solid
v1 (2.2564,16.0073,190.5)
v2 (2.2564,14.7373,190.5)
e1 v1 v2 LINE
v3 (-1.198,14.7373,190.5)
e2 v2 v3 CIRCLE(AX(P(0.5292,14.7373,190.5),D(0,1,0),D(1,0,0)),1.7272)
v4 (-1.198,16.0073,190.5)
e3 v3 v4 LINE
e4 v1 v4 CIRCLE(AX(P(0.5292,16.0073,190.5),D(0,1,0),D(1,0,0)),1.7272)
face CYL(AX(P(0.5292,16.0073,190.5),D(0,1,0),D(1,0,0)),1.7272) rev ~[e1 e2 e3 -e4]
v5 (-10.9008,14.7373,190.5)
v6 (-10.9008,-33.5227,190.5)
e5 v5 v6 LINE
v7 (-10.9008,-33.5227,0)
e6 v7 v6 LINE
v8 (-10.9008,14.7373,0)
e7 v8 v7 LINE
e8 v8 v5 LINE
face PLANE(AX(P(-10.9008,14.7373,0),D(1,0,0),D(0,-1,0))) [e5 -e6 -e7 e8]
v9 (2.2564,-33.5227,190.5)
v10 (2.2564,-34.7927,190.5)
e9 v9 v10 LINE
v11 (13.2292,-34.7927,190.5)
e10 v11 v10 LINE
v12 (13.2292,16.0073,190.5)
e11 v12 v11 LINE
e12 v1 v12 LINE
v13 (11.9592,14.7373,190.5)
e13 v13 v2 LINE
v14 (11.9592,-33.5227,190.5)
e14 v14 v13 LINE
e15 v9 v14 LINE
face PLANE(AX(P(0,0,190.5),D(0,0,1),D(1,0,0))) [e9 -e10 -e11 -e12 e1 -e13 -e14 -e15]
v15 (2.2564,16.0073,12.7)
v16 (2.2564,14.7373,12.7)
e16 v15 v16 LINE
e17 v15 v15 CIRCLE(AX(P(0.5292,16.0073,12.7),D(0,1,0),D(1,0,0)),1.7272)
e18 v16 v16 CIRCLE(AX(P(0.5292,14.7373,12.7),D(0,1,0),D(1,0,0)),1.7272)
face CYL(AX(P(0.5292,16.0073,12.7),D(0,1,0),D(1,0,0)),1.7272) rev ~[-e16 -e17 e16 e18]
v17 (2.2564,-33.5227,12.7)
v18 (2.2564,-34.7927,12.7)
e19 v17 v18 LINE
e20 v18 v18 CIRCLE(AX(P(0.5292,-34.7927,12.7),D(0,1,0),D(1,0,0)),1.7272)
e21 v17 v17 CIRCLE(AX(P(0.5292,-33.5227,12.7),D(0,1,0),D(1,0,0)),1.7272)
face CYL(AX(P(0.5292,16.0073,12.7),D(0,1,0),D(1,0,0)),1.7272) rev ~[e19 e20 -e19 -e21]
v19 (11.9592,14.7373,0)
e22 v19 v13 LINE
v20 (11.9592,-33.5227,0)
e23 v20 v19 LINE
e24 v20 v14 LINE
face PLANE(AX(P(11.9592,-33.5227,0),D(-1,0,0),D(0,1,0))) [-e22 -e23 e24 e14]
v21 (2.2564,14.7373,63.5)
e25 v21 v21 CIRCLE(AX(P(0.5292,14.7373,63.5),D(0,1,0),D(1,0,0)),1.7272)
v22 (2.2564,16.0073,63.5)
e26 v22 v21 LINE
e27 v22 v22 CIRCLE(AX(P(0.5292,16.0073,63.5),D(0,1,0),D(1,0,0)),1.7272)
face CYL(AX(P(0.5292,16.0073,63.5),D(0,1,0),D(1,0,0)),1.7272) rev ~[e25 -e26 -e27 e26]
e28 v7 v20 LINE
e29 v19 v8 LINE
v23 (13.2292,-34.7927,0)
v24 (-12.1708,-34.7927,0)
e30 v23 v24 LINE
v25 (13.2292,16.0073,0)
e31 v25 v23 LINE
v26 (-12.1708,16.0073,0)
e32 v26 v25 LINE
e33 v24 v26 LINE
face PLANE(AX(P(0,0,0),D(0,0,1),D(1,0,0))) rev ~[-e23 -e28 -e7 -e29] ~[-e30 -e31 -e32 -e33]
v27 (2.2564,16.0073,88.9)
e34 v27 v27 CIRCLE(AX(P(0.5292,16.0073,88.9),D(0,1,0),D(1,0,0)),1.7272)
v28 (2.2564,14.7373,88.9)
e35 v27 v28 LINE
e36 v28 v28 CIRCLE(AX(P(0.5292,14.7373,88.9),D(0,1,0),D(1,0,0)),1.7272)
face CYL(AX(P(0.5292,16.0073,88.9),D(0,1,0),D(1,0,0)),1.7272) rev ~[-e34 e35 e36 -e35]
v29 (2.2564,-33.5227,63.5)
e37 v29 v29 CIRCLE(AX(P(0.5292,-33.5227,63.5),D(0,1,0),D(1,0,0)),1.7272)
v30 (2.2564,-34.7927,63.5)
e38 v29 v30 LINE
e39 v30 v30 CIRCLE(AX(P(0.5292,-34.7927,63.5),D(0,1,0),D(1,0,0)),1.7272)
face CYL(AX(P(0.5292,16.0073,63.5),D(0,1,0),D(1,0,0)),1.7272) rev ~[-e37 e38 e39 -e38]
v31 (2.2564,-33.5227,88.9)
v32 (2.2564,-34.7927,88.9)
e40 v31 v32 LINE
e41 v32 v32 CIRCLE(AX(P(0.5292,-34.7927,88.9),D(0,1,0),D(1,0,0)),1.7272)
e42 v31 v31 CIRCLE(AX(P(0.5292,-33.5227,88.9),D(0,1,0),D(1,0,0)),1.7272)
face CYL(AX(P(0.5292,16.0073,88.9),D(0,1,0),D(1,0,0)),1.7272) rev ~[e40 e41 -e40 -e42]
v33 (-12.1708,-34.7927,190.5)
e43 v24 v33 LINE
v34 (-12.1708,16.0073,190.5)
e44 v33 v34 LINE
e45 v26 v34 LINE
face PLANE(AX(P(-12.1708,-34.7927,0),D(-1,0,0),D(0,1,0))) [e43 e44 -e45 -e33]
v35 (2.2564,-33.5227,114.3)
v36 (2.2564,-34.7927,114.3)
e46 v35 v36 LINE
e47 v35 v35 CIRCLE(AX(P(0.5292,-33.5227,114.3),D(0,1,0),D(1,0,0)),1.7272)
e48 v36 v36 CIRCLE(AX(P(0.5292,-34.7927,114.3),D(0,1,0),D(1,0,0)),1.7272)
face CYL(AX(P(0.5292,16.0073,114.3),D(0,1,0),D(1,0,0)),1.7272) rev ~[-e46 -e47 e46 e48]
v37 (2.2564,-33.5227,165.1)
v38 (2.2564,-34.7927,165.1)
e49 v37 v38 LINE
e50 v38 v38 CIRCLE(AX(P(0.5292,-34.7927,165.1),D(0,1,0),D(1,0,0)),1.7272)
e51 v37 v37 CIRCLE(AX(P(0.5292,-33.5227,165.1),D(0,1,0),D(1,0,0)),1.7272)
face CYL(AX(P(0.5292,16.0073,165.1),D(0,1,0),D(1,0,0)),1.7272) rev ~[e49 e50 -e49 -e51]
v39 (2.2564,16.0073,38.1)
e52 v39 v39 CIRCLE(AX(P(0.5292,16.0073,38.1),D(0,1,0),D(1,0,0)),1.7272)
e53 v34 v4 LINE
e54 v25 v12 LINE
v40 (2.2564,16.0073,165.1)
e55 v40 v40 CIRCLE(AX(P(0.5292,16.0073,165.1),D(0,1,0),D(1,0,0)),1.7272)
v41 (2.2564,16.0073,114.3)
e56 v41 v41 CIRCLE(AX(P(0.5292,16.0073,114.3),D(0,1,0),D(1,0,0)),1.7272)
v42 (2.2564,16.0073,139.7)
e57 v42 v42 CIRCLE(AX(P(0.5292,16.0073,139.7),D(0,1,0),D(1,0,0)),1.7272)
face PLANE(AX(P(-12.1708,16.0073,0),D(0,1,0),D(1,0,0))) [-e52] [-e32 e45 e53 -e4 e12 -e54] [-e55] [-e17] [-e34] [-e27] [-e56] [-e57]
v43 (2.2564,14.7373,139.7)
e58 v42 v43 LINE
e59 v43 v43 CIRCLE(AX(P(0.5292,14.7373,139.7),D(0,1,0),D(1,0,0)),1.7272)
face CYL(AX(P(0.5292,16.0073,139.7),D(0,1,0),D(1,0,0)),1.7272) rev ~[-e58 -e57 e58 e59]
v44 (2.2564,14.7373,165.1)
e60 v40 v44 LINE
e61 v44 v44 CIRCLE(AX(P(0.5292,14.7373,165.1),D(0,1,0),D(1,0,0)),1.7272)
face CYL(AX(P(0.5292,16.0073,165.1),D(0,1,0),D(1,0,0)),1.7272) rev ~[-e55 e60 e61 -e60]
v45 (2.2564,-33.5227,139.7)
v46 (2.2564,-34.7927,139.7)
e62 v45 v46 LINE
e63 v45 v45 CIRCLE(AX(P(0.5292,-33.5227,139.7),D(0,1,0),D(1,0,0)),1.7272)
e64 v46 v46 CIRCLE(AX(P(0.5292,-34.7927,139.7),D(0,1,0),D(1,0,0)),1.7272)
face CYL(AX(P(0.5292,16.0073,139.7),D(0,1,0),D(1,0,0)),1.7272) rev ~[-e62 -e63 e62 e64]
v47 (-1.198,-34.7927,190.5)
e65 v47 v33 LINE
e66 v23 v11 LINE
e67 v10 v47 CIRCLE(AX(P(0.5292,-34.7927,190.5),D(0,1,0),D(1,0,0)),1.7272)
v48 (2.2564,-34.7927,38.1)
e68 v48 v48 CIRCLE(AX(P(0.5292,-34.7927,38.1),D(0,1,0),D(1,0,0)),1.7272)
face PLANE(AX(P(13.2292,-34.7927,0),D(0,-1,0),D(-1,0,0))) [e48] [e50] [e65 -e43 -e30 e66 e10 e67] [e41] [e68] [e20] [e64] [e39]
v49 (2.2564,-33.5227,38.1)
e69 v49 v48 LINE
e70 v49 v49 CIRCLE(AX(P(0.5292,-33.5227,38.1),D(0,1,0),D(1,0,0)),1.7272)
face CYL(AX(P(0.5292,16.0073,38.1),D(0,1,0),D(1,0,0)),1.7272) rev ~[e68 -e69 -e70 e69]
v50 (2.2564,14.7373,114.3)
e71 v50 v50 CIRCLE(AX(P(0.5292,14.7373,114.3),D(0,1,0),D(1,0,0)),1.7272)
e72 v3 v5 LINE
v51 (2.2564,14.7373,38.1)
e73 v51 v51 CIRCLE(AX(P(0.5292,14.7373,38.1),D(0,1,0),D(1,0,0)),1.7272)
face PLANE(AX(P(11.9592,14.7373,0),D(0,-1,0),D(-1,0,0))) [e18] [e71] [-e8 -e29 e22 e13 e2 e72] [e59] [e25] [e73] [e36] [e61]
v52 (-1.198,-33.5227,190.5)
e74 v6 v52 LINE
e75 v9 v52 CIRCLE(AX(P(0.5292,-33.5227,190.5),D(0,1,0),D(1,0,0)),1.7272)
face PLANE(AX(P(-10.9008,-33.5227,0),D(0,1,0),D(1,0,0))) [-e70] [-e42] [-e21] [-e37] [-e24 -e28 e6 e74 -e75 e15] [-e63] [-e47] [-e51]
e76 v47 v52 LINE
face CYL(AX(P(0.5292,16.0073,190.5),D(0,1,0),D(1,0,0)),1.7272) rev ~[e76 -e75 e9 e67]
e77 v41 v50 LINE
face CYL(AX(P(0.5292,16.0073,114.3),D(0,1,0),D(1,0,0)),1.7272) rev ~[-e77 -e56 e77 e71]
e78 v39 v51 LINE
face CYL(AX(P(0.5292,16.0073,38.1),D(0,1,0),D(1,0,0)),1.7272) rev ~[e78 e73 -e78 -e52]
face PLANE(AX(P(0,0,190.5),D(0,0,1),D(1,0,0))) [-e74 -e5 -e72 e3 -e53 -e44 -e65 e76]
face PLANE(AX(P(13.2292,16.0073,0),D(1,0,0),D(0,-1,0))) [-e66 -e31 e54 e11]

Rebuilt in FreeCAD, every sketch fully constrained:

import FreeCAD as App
import Part
import Sketcher
Q = App.Units.Quantity


def add_polygon(sketch, points):
    """Adds a closed chain of lines whose ends are joined by coincident constraints."""
    first, n = sketch.GeometryCount, len(points)
    for a, b in zip(points, points[1:] + points[:1]):
        sketch.addGeometry(Part.LineSegment(App.Vector(*a, 0), App.Vector(*b, 0)), False)
    for i in range(n):
        sketch.addConstraint(Sketcher.Constraint("Coincident", first + i, 2, first + (i + 1) % n, 1))

doc = App.newDocument("Part")
params = doc.addObject("Spreadsheet::Sheet", "Params")
for row, (alias, value) in enumerate([
    ("sketch1_width", "1 in"),
    ("sketch1_height", "2 in"),
    ("pad1_length", "7.5 in"),
    ("sketch2_diameter", "0.136 in"),
    ("linearpattern_pitch", "1 in"),
], start=1):
    params.set(f"A{row}", alias)
    params.set(f"B{row}", "=" + value)
    params.setAlias(f"B{row}", alias)

body = doc.addObject("PartDesign::Body", "Body")

# Sketch on XY plane
sketch1 = body.newObject("Sketcher::SketchObject", "Sketch")
sketch1.AttachmentSupport = (doc.getObject("XY_Plane"), [""])
sketch1.MapMode = "FlatFace"
add_polygon(sketch1, [(13, 16), (-12, 16), (-12, -35), (13, -35)])  # lines 0-3
add_polygon(sketch1, [(-11, 15), (12, 15), (12, -34), (-11, -34)])  # lines 4-7
sketch1.addConstraint([
    Sketcher.Constraint("Horizontal", 0),
    Sketcher.Constraint("Vertical", 1),
    Sketcher.Constraint("Horizontal", 2),
    Sketcher.Constraint("Vertical", 3),
    Sketcher.Constraint("Horizontal", 4),
    Sketcher.Constraint("Vertical", 5),
    Sketcher.Constraint("Horizontal", 6),
    Sketcher.Constraint("Vertical", 7),
    Sketcher.Constraint("DistanceX", 0, 2, 0, 1, Q("1 in")),
    Sketcher.Constraint("DistanceY", 1, 2, 1, 1, Q("2 in")),
    Sketcher.Constraint("DistanceX", 4, 2, 3, 2, Q("0.05 in")),
    Sketcher.Constraint("DistanceY", 4, 2, 3, 2, Q("0.05 in")),
    Sketcher.Constraint("DistanceY", 2, 2, 5, 2, Q("0.05 in")),
    Sketcher.Constraint("DistanceX", 1, 2, 6, 2, Q("0.05 in")),
    Sketcher.Constraint("DistanceY", -1, 1, 0, 2, Q("0.6302 in")),
    Sketcher.Constraint("DistanceX", 0, 2, -1, 1, Q("12.1708 mm")),
])
sketch1.setExpression("Constraints[16]", "Params.sketch1_width")
sketch1.setExpression("Constraints[17]", "Params.sketch1_height")
pad1 = body.newObject("PartDesign::Pad", "Pad")
pad1.Profile = sketch1
pad1.setExpression("Length", "Params.pad1_length")

# Sketch on XZ plane
sketch2 = body.newObject("Sketcher::SketchObject", "Sketch001")
sketch2.AttachmentSupport = (doc.getObject("XZ_Plane"), [""])
sketch2.MapMode = "FlatFace"
sketch2.AttachmentOffset = App.Placement(App.Vector(0, 0, -0.6302087 * 25.4), App.Rotation())
sketch2.addGeometry(Part.Circle(App.Vector(0.5, 12.7, 0), App.Vector(0, 0, 1), 1.7), False)
sketch2.addConstraint([
    Sketcher.Constraint("Diameter", 0, Q("0.136 in")),
    Sketcher.Constraint("DistanceY", -1, 1, 0, 3, Q("0.5 in")),
    Sketcher.Constraint("DistanceX", -1, 1, 0, 3, Q("0.5292 mm")),
])
sketch2.setExpression("Constraints[0]", "Params.sketch2_diameter")
pocket1 = body.newObject("PartDesign::Pocket", "Pocket")
pocket1.Profile = sketch2
pocket1.Type = "ThroughAll"
pocket1.Reversed = True
doc.recompute()

linearpattern = body.newObject("PartDesign::LinearPattern", "LinearPattern")
linearpattern.Originals = [pocket1]
linearpattern.Direction = (doc.getObject("Z_Axis"), [""])
linearpattern.Mode = "offset"
linearpattern.setExpression("Offset", "Params.linearpattern_pitch")
linearpattern.Occurrences = 19
body.Tip = linearpattern

doc.recompute()
